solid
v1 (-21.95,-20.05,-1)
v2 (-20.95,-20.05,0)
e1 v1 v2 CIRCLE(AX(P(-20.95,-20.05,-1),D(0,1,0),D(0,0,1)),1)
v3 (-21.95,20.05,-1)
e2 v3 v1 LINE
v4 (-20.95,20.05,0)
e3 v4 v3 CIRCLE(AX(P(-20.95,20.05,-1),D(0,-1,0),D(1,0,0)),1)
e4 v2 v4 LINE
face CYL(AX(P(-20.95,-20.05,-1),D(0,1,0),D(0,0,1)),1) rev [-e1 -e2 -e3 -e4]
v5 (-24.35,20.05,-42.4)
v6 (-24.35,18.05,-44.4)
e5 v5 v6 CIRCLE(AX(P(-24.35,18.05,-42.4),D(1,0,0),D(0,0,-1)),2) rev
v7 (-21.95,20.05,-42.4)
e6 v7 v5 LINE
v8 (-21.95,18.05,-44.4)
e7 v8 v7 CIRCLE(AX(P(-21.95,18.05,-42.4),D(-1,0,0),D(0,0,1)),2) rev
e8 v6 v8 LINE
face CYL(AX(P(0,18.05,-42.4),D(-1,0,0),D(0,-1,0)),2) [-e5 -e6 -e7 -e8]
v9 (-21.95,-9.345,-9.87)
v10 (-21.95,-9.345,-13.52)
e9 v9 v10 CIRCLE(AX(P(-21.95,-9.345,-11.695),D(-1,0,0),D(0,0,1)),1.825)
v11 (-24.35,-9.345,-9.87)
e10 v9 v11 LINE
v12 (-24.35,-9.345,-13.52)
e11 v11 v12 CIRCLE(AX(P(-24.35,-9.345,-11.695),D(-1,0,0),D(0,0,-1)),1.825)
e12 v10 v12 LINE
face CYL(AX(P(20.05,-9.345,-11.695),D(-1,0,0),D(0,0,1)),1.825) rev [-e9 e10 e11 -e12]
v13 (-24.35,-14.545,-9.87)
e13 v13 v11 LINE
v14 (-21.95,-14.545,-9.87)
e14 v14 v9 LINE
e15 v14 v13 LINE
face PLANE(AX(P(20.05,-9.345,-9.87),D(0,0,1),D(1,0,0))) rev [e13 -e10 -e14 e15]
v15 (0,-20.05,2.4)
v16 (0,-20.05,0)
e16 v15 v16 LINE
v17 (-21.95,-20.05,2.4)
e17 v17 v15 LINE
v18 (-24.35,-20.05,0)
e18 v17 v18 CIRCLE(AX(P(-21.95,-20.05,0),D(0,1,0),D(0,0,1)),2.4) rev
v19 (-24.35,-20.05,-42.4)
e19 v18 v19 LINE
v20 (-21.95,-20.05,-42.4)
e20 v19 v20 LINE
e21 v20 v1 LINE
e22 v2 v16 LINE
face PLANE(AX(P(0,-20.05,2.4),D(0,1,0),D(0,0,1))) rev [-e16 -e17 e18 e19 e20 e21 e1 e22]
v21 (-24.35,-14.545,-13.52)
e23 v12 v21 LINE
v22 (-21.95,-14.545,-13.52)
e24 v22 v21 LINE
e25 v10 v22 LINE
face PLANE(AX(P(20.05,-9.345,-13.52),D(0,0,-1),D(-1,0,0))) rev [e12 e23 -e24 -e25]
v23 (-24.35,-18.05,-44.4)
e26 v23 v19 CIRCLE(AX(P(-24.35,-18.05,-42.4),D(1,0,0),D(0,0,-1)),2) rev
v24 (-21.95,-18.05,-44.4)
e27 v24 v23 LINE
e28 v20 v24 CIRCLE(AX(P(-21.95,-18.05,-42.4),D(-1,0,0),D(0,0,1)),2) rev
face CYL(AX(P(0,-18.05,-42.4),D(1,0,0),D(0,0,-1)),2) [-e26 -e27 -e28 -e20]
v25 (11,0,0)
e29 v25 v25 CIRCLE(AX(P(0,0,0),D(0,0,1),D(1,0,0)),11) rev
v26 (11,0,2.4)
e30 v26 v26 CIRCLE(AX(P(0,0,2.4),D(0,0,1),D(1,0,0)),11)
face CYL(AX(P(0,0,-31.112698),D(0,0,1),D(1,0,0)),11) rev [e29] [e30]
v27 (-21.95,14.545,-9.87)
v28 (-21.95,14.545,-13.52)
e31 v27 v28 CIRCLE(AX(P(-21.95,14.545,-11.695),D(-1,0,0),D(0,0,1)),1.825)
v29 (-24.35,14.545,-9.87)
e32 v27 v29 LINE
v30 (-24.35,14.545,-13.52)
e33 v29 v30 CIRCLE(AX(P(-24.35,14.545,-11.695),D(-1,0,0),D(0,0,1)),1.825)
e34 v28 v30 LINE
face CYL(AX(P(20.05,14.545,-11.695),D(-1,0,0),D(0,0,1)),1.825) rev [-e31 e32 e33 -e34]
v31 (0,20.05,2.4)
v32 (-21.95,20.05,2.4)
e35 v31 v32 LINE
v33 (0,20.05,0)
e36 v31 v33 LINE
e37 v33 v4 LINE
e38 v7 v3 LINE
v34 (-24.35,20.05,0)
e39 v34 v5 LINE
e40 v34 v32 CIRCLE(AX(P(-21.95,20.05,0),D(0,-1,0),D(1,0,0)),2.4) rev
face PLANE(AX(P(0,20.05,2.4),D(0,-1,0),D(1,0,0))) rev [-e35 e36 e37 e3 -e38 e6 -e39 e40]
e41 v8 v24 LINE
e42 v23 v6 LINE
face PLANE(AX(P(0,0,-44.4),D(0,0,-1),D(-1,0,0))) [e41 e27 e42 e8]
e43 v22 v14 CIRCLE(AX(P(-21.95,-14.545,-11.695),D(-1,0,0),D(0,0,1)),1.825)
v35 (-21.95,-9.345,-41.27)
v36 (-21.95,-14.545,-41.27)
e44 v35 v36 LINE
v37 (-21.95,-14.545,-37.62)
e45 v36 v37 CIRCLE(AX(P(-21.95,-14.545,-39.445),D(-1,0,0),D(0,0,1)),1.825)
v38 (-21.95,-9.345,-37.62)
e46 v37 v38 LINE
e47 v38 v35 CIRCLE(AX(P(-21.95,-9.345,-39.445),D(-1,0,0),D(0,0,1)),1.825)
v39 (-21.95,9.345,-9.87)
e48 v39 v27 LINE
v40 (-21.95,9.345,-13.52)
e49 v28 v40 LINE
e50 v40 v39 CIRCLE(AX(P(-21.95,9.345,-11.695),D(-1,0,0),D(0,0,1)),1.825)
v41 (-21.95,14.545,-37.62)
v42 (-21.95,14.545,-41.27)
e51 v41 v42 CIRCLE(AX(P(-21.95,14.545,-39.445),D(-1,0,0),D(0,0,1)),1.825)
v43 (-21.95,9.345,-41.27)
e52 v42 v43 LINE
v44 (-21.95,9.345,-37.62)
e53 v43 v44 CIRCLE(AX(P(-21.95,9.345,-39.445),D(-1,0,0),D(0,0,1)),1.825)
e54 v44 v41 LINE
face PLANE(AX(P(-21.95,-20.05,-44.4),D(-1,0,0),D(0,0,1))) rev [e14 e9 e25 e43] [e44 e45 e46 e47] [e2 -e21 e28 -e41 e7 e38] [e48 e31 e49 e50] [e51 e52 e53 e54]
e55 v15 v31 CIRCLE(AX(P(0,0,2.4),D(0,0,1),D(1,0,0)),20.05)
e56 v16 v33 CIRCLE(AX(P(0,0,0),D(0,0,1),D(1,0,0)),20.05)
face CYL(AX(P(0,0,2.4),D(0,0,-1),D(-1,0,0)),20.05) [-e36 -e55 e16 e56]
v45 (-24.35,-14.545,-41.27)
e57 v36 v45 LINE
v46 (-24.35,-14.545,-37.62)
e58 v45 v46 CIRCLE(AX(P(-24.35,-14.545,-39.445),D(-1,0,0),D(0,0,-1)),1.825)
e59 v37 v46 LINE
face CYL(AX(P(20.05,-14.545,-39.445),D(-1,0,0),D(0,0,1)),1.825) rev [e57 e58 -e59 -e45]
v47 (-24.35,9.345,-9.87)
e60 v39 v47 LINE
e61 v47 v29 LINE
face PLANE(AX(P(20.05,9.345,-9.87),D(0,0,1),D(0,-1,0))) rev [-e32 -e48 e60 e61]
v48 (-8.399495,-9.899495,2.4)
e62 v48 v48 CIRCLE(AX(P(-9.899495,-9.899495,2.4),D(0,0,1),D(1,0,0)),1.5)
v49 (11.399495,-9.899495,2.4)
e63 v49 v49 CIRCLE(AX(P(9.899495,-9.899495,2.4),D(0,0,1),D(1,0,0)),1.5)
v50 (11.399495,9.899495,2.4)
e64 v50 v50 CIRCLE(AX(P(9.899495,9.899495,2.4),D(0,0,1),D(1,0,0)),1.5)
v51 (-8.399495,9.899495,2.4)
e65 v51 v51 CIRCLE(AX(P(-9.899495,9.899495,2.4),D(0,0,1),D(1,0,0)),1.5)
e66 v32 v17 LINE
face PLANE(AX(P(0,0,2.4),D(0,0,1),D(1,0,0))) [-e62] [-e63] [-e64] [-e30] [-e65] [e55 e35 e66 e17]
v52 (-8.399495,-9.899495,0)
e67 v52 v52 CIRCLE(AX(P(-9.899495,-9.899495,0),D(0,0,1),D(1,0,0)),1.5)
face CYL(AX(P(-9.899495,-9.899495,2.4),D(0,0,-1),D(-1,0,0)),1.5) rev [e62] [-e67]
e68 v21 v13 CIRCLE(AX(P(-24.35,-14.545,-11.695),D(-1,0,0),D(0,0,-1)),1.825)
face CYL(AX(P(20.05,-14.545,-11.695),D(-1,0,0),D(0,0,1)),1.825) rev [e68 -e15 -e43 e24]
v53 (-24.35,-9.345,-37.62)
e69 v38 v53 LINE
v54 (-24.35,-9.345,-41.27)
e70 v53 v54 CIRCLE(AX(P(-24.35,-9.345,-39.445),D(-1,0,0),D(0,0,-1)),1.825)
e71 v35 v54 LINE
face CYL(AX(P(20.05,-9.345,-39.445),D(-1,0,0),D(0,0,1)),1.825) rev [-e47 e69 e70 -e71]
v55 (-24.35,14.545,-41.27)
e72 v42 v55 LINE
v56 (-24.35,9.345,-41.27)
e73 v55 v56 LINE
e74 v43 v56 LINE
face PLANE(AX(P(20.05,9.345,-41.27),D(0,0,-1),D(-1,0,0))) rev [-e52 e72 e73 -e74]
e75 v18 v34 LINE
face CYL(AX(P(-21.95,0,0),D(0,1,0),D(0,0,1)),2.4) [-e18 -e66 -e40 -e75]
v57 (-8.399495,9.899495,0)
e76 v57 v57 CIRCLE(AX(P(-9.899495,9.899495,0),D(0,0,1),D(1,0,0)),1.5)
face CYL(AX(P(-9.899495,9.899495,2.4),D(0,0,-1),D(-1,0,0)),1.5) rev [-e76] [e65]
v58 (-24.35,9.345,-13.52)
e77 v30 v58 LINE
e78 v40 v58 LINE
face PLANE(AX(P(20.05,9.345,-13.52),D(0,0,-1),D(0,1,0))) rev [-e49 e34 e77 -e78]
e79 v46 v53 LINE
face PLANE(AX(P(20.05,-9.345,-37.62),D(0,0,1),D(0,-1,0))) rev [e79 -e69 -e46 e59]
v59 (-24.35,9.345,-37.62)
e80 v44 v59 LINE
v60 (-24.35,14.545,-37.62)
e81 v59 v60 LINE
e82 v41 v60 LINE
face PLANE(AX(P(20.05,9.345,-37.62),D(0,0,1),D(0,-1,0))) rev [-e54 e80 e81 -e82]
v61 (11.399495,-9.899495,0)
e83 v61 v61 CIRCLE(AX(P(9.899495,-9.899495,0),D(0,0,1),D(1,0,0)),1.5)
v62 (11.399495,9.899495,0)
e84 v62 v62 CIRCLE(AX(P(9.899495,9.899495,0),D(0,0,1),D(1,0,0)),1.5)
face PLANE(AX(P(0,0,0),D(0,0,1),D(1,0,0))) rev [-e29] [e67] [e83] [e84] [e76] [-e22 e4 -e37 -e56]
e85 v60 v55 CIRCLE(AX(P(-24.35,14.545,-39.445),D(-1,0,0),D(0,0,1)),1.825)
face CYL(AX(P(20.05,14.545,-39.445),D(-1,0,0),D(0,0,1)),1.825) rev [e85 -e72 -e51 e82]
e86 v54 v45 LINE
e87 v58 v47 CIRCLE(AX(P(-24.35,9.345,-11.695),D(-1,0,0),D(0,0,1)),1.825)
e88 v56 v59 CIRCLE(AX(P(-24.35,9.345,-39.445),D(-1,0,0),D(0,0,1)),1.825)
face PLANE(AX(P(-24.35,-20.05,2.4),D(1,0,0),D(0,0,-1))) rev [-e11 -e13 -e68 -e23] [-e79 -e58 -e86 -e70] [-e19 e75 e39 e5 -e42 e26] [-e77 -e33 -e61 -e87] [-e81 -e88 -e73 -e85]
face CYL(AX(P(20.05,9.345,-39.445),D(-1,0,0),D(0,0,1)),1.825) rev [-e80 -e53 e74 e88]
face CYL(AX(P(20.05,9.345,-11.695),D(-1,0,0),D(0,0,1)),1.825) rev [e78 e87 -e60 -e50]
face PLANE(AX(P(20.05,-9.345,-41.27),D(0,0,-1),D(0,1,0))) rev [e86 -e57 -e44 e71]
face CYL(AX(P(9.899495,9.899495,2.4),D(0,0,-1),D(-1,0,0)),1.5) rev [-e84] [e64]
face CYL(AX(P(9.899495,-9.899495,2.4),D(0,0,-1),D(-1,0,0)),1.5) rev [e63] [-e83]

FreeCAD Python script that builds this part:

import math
import FreeCAD as App
import Part
import Sketcher
from FreeCAD import Vector
Q = App.Units.Quantity


def edges_at(feature, points):
    """Names of the edges that pass closest to the given points."""
    edges = feature.Shape.Edges
    near = lambda p: min(range(len(edges)), key=lambda i: edges[i].distToShape(Part.Vertex(*p))[0])
    return sorted({f"Edge{near(p) + 1}" for p in points})


def add_polygon(sketch, points):
    """Adds a closed chain of lines whose ends are joined by coincident constraints."""
    first, n = sketch.GeometryCount, len(points)
    for a, b in zip(points, points[1:] + points[:1]):
        sketch.addGeometry(Part.LineSegment(App.Vector(*a, 0), App.Vector(*b, 0)), False)
    for i in range(n):
        sketch.addConstraint(Sketcher.Constraint("Coincident", first + i, 2, first + (i + 1) % n, 1))

doc = App.newDocument("Part")
params = doc.addObject("Spreadsheet::Sheet", "Params")
for row, (alias, value) in enumerate([
    ("sketch1_diameter", "3 mm"),
    ("sketch1_radius", "20.05 mm"),
    ("sketch1_width", "24.35 mm"),
    ("pad1_length", "2.4 mm"),
    ("sketch2_width", "2.4 mm"),
    ("sketch2_height", "40.1 mm"),
    ("pad2_length", "44.4 mm"),
    ("fillet_radius", "1 mm"),
    ("fillet2_radius", "2.4 mm"),
    ("fillet3_radius", "2 mm"),
    ("sketch3_width", "5.2 mm"),
    ("sketch4_diameter", "8 mm"),
    ("pocket2_length", "2.4 mm"),
    ("sketch5_diameter", "22 mm"),
    ("pocket3_length", "2.4 mm"),
], start=1):
    params.set(f"A{row}", alias)
    params.set(f"B{row}", "=" + value)
    params.setAlias(f"B{row}", alias)

body = doc.addObject("PartDesign::Body", "Body")

sketch1 = body.newObject("Sketcher::SketchObject", "Sketch")
sketch1.AttachmentSupport = (doc.getObject("XY_Plane"), [""])
sketch1.MapMode = "FlatFace"
sketch1.addGeometry(Part.LineSegment(Vector(-24.4, -20.1, 0), Vector(0, -20.1, 0)), False)
sketch1.addGeometry(Part.ArcOfCircle(Part.Circle(Vector(0, 0, 0), Vector(0, 0, 1), 20.1), math.radians(-90), math.radians(90)), False)
sketch1.addGeometry(Part.LineSegment(Vector(0, 20.1, 0), Vector(-24.4, 20.1, 0)), False)
sketch1.addGeometry(Part.LineSegment(Vector(-24.4, 20.1, 0), Vector(-24.4, -20.1, 0)), False)
sketch1.addGeometry(Part.Circle(Vector(9.9, -9.9, 0), Vector(0, 0, 1), 1.5), False)
sketch1.addGeometry(Part.Circle(Vector(-9.9, -9.9, 0), Vector(0, 0, 1), 1.5), False)
sketch1.addGeometry(Part.Circle(Vector(9.9, 9.9, 0), Vector(0, 0, 1), 1.5), False)
sketch1.addGeometry(Part.Circle(Vector(-9.9, 9.9, 0), Vector(0, 0, 1), 1.5), False)
sketch1.addConstraint(Sketcher.Constraint("Tangent", 0, 2, 1, 1))
sketch1.addConstraint(Sketcher.Constraint("Tangent", 1, 2, 2, 1))
sketch1.addConstraint(Sketcher.Constraint("Coincident", 2, 2, 3, 1))
sketch1.addConstraint(Sketcher.Constraint("Coincident", 3, 2, 0, 1))
sketch1.addConstraint(Sketcher.Constraint("Horizontal", 0))
sketch1.addConstraint(Sketcher.Constraint("Horizontal", 2))
sketch1.addConstraint(Sketcher.Constraint("Vertical", 3))
sketch1.addConstraint(Sketcher.Constraint("Coincident", 1, 3, -1, 1))
sketch1.addConstraint(Sketcher.Constraint("Equal", 4, 5))
sketch1.addConstraint(Sketcher.Constraint("Equal", 5, 6))
sketch1.addConstraint(Sketcher.Constraint("Equal", 6, 7))
sketch1.addConstraint(Sketcher.Constraint("Symmetric", 5, 3, 6, 3, -1, 1))
sketch1.addConstraint(Sketcher.Constraint("Symmetric", 4, 3, 7, 3, -1, 1))
sketch1.addConstraint(Sketcher.Constraint("Symmetric", 4, 3, 5, 3, -2))
sketch1.addConstraint(Sketcher.Constraint("Diameter", 4, Q("3 mm")))
sketch1.addConstraint(Sketcher.Constraint("Radius", 1, Q("20.05 mm")))
sketch1.addConstraint(Sketcher.Constraint("DistanceX", 0, 1, 0, 2, Q("24.35 mm")))
sketch1.addConstraint(Sketcher.Constraint("DistanceX", 5, 3, 4, 3, Q("19.79899 mm")))
sketch1.addConstraint(Sketcher.Constraint("DistanceY", 4, 3, 6, 3, Q("19.79899 mm")))
sketch1.setExpression("Constraints[14]", "Params.sketch1_diameter")
sketch1.setExpression("Constraints[15]", "Params.sketch1_radius")
sketch1.setExpression("Constraints[16]", "Params.sketch1_width")
pad1 = body.newObject("PartDesign::Pad", "Pad")
pad1.Profile = sketch1
pad1.setExpression("Length", "Params.pad1_length")

sketch2 = body.newObject("Sketcher::SketchObject", "Sketch001")
sketch2.AttachmentSupport = (doc.getObject("XY_Plane"), [""])
sketch2.MapMode = "FlatFace"
add_polygon(sketch2, [(-21.9, 20.1), (-21.9, -20.1), (-24.4, -20.1), (-24.4, 20.1)])
sketch2.addConstraint(Sketcher.Constraint("Vertical", 0))
sketch2.addConstraint(Sketcher.Constraint("Horizontal", 1))
sketch2.addConstraint(Sketcher.Constraint("Vertical", 2))
sketch2.addConstraint(Sketcher.Constraint("Horizontal", 3))
sketch2.addConstraint(Sketcher.Constraint("DistanceX", 1, 2, 1, 1, Q("2.4 mm")))
sketch2.addConstraint(Sketcher.Constraint("DistanceY", 0, 2, 0, 1, Q("40.1 mm")))
sketch2.addConstraint(Sketcher.Constraint("DistanceX", 0, 2, -1, 1, Q("21.95 mm")))
sketch2.addConstraint(Sketcher.Constraint("DistanceY", 0, 2, -1, 1, Q("20.05 mm")))
sketch2.setExpression("Constraints[8]", "Params.sketch2_width")
sketch2.setExpression("Constraints[9]", "Params.sketch2_height")
pad2 = body.newObject("PartDesign::Pad", "Pad001")
pad2.Profile = sketch2
pad2.setExpression("Length", "Params.pad2_length")
pad2.Reversed = True
doc.recompute()

fillet = body.newObject("PartDesign::Fillet", "Fillet")
fillet.Base = (pad2, edges_at(pad2, [(-21.95, 0, 0)]))
fillet.setExpression("Radius", "Params.fillet_radius")
doc.recompute()

fillet2 = body.newObject("PartDesign::Fillet", "Fillet001")
fillet2.Base = (fillet, edges_at(fillet, [(-24.35, 0, 2.4)]))
fillet2.setExpression("Radius", "Params.fillet2_radius")
doc.recompute()

fillet3 = body.newObject("PartDesign::Fillet", "Fillet002")
fillet3.Base = (fillet2, edges_at(fillet2, [(-23.15, 20.05, -44.4), (-23.15, -20.05, -44.4)]))
fillet3.setExpression("Radius", "Params.fillet3_radius")

sketch3 = body.newObject("Sketcher::SketchObject", "Sketch002")
sketch3.AttachmentSupport = (doc.getObject("YZ_Plane"), [""])
sketch3.MapMode = "FlatFace"
sketch3.AttachmentOffset = App.Placement(Vector(0, 0, -24.35), App.Rotation())
sketch3.addGeometry(Part.LineSegment(Vector(14.5, -41.3, 0), Vector(9.3, -41.3, 0)), False)
sketch3.addGeometry(Part.ArcOfCircle(Part.Circle(Vector(9.3, -39.4, 0), Vector(0, 0, 1), 1.8), math.radians(90), math.radians(270)), False)
sketch3.addGeometry(Part.LineSegment(Vector(9.3, -37.6, 0), Vector(14.5, -37.6, 0)), False)
sketch3.addGeometry(Part.ArcOfCircle(Part.Circle(Vector(14.5, -39.4, 0), Vector(0, 0, 1), 1.8), math.radians(-90), math.radians(90)), False)
sketch3.addGeometry(Part.LineSegment(Vector(14.5, -13.5, 0), Vector(9.3, -13.5, 0)), False)
sketch3.addGeometry(Part.ArcOfCircle(Part.Circle(Vector(9.3, -11.7, 0), Vector(0, 0, 1), 1.8), math.radians(90), math.radians(270)), False)
sketch3.addGeometry(Part.LineSegment(Vector(9.3, -9.9, 0), Vector(14.5, -9.9, 0)), False)
sketch3.addGeometry(Part.ArcOfCircle(Part.Circle(Vector(14.5, -11.7, 0), Vector(0, 0, 1), 1.8), math.radians(-90), math.radians(90)), False)
sketch3.addGeometry(Part.LineSegment(Vector(-9.3, -41.3, 0), Vector(-14.5, -41.3, 0)), False)
sketch3.addGeometry(Part.ArcOfCircle(Part.Circle(Vector(-14.5, -39.4, 0), Vector(0, 0, 1), 1.8), math.radians(90), math.radians(270)), False)
sketch3.addGeometry(Part.LineSegment(Vector(-14.5, -37.6, 0), Vector(-9.3, -37.6, 0)), False)
sketch3.addGeometry(Part.ArcOfCircle(Part.Circle(Vector(-9.3, -39.4, 0), Vector(0, 0, 1), 1.8), math.radians(-90), math.radians(90)), False)
sketch3.addGeometry(Part.LineSegment(Vector(-9.3, -13.5, 0), Vector(-14.5, -13.5, 0)), False)
sketch3.addGeometry(Part.ArcOfCircle(Part.Circle(Vector(-14.5, -11.7, 0), Vector(0, 0, 1), 1.8), math.radians(90), math.radians(270)), False)
sketch3.addGeometry(Part.LineSegment(Vector(-14.5, -9.9, 0), Vector(-9.3, -9.9, 0)), False)
sketch3.addGeometry(Part.ArcOfCircle(Part.Circle(Vector(-9.3, -11.7, 0), Vector(0, 0, 1), 1.8), math.radians(-90), math.radians(90)), False)
sketch3.addConstraint(Sketcher.Constraint("Tangent", 0, 2, 1, 2))
sketch3.addConstraint(Sketcher.Constraint("Tangent", 1, 1, 2, 1))
sketch3.addConstraint(Sketcher.Constraint("Tangent", 2, 2, 3, 2))
sketch3.addConstraint(Sketcher.Constraint("Tangent", 3, 1, 0, 1))
sketch3.addConstraint(Sketcher.Constraint("Tangent", 4, 2, 5, 2))
sketch3.addConstraint(Sketcher.Constraint("Tangent", 5, 1, 6, 1))
sketch3.addConstraint(Sketcher.Constraint("Tangent", 6, 2, 7, 2))
sketch3.addConstraint(Sketcher.Constraint("Tangent", 7, 1, 4, 1))
sketch3.addConstraint(Sketcher.Constraint("Tangent", 8, 2, 9, 2))
sketch3.addConstraint(Sketcher.Constraint("Tangent", 9, 1, 10, 1))
sketch3.addConstraint(Sketcher.Constraint("Tangent", 10, 2, 11, 2))
sketch3.addConstraint(Sketcher.Constraint("Tangent", 11, 1, 8, 1))
sketch3.addConstraint(Sketcher.Constraint("Tangent", 12, 2, 13, 2))
sketch3.addConstraint(Sketcher.Constraint("Tangent", 13, 1, 14, 1))
sketch3.addConstraint(Sketcher.Constraint("Tangent", 14, 2, 15, 2))
sketch3.addConstraint(Sketcher.Constraint("Tangent", 15, 1, 12, 1))
sketch3.addConstraint(Sketcher.Constraint("Horizontal", 0))
sketch3.addConstraint(Sketcher.Constraint("Horizontal", 2))
sketch3.addConstraint(Sketcher.Constraint("Horizontal", 4))
sketch3.addConstraint(Sketcher.Constraint("Horizontal", 6))
sketch3.addConstraint(Sketcher.Constraint("Horizontal", 8))
sketch3.addConstraint(Sketcher.Constraint("Horizontal", 10))
sketch3.addConstraint(Sketcher.Constraint("Horizontal", 12))
sketch3.addConstraint(Sketcher.Constraint("Horizontal", 14))
sketch3.addConstraint(Sketcher.Constraint("Equal", 3, 5))
sketch3.addConstraint(Sketcher.Constraint("Equal", 7, 9))
sketch3.addConstraint(Sketcher.Constraint("Equal", 11, 13))
sketch3.addConstraint(Sketcher.Constraint("Symmetric", 3, 3, 9, 3, -2))
sketch3.addConstraint(Sketcher.Constraint("Symmetric", 7, 3, 13, 3, -2))
sketch3.addConstraint(Sketcher.Constraint("Vertical", 1, 3, 5, 3))
sketch3.addConstraint(Sketcher.Constraint("Vertical", 3, 3, 7, 3))
sketch3.addConstraint(Sketcher.Constraint("Vertical", 11, 3, 15, 3))
sketch3.addConstraint(Sketcher.Constraint("Equal", 6, 8))
sketch3.addConstraint(Sketcher.Constraint("DistanceX", 0, 2, 0, 1, Q("5.2 mm")))
sketch3.addConstraint(Sketcher.Constraint("Radius", 1, Q("1.825 mm")))
sketch3.addConstraint(Sketcher.Constraint("DistanceY", 1, 1, 4, 2, Q("24.1 mm")))
sketch3.addConstraint(Sketcher.Constraint("DistanceY", 0, 2, -1, 1, Q("41.27 mm")))
sketch3.addConstraint(Sketcher.Constraint("DistanceX", 9, 3, 1, 3, Q("23.89 mm")))
sketch3.setExpression("Constraints[33]", "Params.sketch3_width")
pocket1 = body.newObject("PartDesign::Pocket", "Pocket")
pocket1.Profile = sketch3
pocket1.Type = "ThroughAll"
pocket1.Reversed = True

sketch4 = body.newObject("Sketcher::SketchObject", "Sketch003")
sketch4.AttachmentSupport = (doc.getObject("XY_Plane"), [""])
sketch4.MapMode = "FlatFace"
sketch4.AttachmentOffset = App.Placement(Vector(0, 0, 2.4), App.Rotation())
sketch4.addGeometry(Part.Circle(Vector(0, 0, 0), Vector(0, 0, 1), 4), False)
sketch4.addConstraint(Sketcher.Constraint("Coincident", 0, 3, -1, 1))
sketch4.addConstraint(Sketcher.Constraint("Diameter", 0, Q("8 mm")))
sketch4.setExpression("Constraints[1]", "Params.sketch4_diameter")
pocket2 = body.newObject("PartDesign::Pocket", "Pocket001")
pocket2.Profile = sketch4
pocket2.setExpression("Length", "Params.pocket2_length")

sketch5 = body.newObject("Sketcher::SketchObject", "Sketch004")
sketch5.AttachmentSupport = (doc.getObject("XY_Plane"), [""])
sketch5.MapMode = "FlatFace"
sketch5.AttachmentOffset = App.Placement(Vector(0, 0, 2.4), App.Rotation())
sketch5.addGeometry(Part.Circle(Vector(0, 0, 0), Vector(0, 0, 1), 11), False)
sketch5.addConstraint(Sketcher.Constraint("Coincident", 0, 3, -1, 1))
sketch5.addConstraint(Sketcher.Constraint("Diameter", 0, Q("22 mm")))
sketch5.setExpression("Constraints[1]", "Params.sketch5_diameter")
pocket3 = body.newObject("PartDesign::Pocket", "Pocket002")
pocket3.Profile = sketch5
pocket3.setExpression("Length", "Params.pocket3_length")

doc.recompute()
